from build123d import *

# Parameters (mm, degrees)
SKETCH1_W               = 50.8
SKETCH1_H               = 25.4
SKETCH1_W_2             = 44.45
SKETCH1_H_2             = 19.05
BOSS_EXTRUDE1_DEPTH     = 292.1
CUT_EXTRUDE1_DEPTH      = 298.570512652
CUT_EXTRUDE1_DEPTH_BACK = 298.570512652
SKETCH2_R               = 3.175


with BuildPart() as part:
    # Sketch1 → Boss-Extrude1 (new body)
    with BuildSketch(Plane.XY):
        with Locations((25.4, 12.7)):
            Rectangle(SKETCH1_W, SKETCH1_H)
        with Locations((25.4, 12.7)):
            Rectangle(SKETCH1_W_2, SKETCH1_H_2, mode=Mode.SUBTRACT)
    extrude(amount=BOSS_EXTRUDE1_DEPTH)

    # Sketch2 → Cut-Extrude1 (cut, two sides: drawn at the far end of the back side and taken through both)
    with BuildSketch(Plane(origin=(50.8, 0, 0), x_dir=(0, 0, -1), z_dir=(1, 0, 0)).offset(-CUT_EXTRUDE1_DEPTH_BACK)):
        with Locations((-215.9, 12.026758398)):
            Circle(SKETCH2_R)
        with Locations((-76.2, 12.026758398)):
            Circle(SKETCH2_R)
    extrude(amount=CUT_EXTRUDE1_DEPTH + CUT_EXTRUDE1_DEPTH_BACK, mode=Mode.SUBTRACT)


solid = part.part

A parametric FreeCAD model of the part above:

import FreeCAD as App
import Part
import Sketcher

V = App.Vector
Q = App.Units.Quantity


def add_polygon(sketch, points):
    """Adds a closed chain of lines whose ends are joined by coincident constraints."""
    first, n = sketch.GeometryCount, len(points)
    for a, b in zip(points, points[1:] + points[:1]):
        sketch.addGeometry(Part.LineSegment(App.Vector(*a, 0), App.Vector(*b, 0)), False)
    for i in range(n):
        sketch.addConstraint(Sketcher.Constraint("Coincident", first + i, 2, first + (i + 1) % n, 1))

doc = App.newDocument("Part")
body = doc.addObject("PartDesign::Body", "Body")

# Sketch on XY plane
sketch1 = body.newObject("Sketcher::SketchObject", "Sketch")
sketch1.AttachmentSupport = (doc.getObject("XY_Plane"), [""])
sketch1.MapMode = "FlatFace"
add_polygon(sketch1, [(0, 25), (0, 0), (51, 0), (51, 25)])  # lines 0-3
add_polygon(sketch1, [(48, 3), (3, 3), (3, 22), (48, 22)])  # lines 4-7
sketch1.addConstraint([
    Sketcher.Constraint("Vertical", 0),
    Sketcher.Constraint("Horizontal", 1),
    Sketcher.Constraint("Vertical", 2),
    Sketcher.Constraint("Horizontal", 3),
    Sketcher.Constraint("Horizontal", 4),
    Sketcher.Constraint("Vertical", 5),
    Sketcher.Constraint("Horizontal", 6),
    Sketcher.Constraint("Vertical", 7),
    Sketcher.Constraint("Coincident", 0, 2, -1, 1),
    Sketcher.Constraint("DistanceX", 1, 1, 1, 2, Q("2 in")),
    Sketcher.Constraint("DistanceY", 0, 2, 0, 1, Q("1 in")),
    Sketcher.Constraint("DistanceX", 4, 2, 4, 1, Q("1.75 in")),
    Sketcher.Constraint("DistanceY", 5, 1, 5, 2, Q("0.75 in")),
    Sketcher.Constraint("DistanceX", -1, 1, 4, 2, Q("0.125 in")),
    Sketcher.Constraint("DistanceY", -1, 1, 4, 2, Q("0.125 in")),
])
pad1 = body.newObject("PartDesign::Pad", "Pad")
pad1.Profile = sketch1
pad1.Length = Q("11.5 in")

# Sketch on YZ plane
sketch2 = body.newObject("Sketcher::SketchObject", "Sketch001")
sketch2.AttachmentSupport = (doc.getObject("YZ_Plane"), [""])
sketch2.MapMode = "FlatFace"
sketch2.AttachmentOffset = App.Placement(V(0, 0, 2 * 25.4), App.Rotation())
sketch2.addGeometry([
    Part.Circle(V(12, 215.9, 0), V(0, 0, 1), 3.2),
    Part.Circle(V(12, 76.2, 0), V(0, 0, 1), 3.2),
], False)
sketch2.addConstraint([
    Sketcher.Constraint("Equal", 0, 1),
    Sketcher.Constraint("Vertical", 0, 3, 1, 3),
    Sketcher.Constraint("Diameter", 0, Q("0.25 in")),
    Sketcher.Constraint("DistanceY", -1, 1, 1, 3, Q("3 in")),
    Sketcher.Constraint("DistanceY", -1, 1, 0, 3, Q("8.5 in")),
    Sketcher.Constraint("DistanceX", -1, 1, 0, 3, Q("12.026758 mm")),
])
pocket1 = body.newObject("PartDesign::Pocket", "Pocket")
pocket1.Profile = sketch2
pocket1.Type = "ThroughAll"
pocket1.Midplane = True

doc.recompute()
